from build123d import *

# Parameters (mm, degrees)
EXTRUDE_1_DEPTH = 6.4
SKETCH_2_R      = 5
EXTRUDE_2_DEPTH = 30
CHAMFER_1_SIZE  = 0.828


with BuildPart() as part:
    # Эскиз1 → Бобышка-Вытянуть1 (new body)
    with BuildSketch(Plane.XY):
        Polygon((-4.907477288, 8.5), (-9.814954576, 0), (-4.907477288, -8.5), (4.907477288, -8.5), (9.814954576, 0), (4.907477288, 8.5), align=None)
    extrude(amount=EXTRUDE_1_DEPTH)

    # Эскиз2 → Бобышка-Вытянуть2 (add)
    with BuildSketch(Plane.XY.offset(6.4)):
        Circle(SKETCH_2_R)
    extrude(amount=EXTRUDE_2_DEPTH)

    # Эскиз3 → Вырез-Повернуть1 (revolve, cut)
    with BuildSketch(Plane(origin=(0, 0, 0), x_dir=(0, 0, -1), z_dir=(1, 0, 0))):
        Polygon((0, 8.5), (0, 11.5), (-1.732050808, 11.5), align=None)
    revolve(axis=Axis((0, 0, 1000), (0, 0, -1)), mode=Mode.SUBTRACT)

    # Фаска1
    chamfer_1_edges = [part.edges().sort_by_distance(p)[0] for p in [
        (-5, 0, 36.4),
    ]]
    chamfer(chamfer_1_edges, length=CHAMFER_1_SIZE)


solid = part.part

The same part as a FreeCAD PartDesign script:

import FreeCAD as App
import Part
import Sketcher
from FreeCAD import Vector
Q = App.Units.Quantity


def edges_at(feature, points):
    """Names of the edges that pass closest to the given points."""
    edges = feature.Shape.Edges
    near = lambda p: min(range(len(edges)), key=lambda i: edges[i].distToShape(Part.Vertex(*p))[0])
    return sorted({f"Edge{near(p) + 1}" for p in points})


def add_polygon(sketch, points):
    """Adds a closed chain of lines whose ends are joined by coincident constraints."""
    first, n = sketch.GeometryCount, len(points)
    for a, b in zip(points, points[1:] + points[:1]):
        sketch.addGeometry(Part.LineSegment(App.Vector(*a, 0), App.Vector(*b, 0)), False)
    for i in range(n):
        sketch.addConstraint(Sketcher.Constraint("Coincident", first + i, 2, first + (i + 1) % n, 1))

doc = App.newDocument("Part")
body = doc.addObject("PartDesign::Body", "Body")

# Sketch on XY plane
sketch1 = doc.addObject("Sketcher::SketchObject", "Sketch")
body.addObject(sketch1)
sketch1.AttachmentSupport = (doc.XY_Plane, [""])
sketch1.MapMode = "FlatFace"
add_polygon(sketch1, [(-5, 8), (-10, 0), (-5, -8), (5, -8), (10, 0), (5, 8)])  # lines 0-5
sketch1.addConstraint(Sketcher.Constraint("Horizontal", 2))
sketch1.addConstraint(Sketcher.Constraint("Horizontal", 5))
sketch1.addConstraint(Sketcher.Constraint("Symmetric", 0, 2, 3, 2, -1, 1))
sketch1.addConstraint(Sketcher.Constraint("Symmetric", 1, 2, 4, 2, -1, 1))
sketch1.addConstraint(Sketcher.Constraint("PointOnObject", 0, 2, -1))
sketch1.addConstraint(Sketcher.Constraint("Parallel", 0, 3))
sketch1.addConstraint(Sketcher.Constraint("Vertical", 2, 2, 4, 2))
sketch1.addConstraint(Sketcher.Constraint("Angle", 0, Q("-120 deg")))
sketch1.addConstraint(Sketcher.Constraint("DistanceY", 2, 2, 4, 2, Q("17 mm")))
sketch1.addConstraint(Sketcher.Constraint("DistanceX", 2, 1, 2, 2, Q("9.814955 mm")))
pad1 = doc.addObject("PartDesign::Pad", "Pad")
body.addObject(pad1)
pad1.Profile = sketch1
pad1.Length = 6.4

# Sketch on XY plane
sketch2 = doc.addObject("Sketcher::SketchObject", "Sketch001")
body.addObject(sketch2)
sketch2.AttachmentSupport = (doc.XY_Plane, [""])
sketch2.MapMode = "FlatFace"
sketch2.AttachmentOffset = App.Placement(Vector(0, 0, 6.4), App.Rotation())
sketch2.addGeometry(Part.Circle(Vector(0, 0, 0), Vector(0, 0, 1), 5), False)
sketch2.addConstraint(Sketcher.Constraint("Coincident", 0, 3, -1, 1))
sketch2.addConstraint(Sketcher.Constraint("Diameter", 0, Q("10 mm")))
pad2 = doc.addObject("PartDesign::Pad", "Pad001")
body.addObject(pad2)
pad2.Profile = sketch2
pad2.Length = 30

# Sketch on YZ plane
sketch3 = doc.addObject("Sketcher::SketchObject", "Sketch002")
body.addObject(sketch3)
sketch3.AttachmentSupport = (doc.YZ_Plane, [""])
sketch3.MapMode = "FlatFace"
add_polygon(sketch3, [(8.5, 0), (11.5, 0), (11.5, 1.7)])  # lines 0-2
sketch3.addConstraint(Sketcher.Constraint("Horizontal", 0))
sketch3.addConstraint(Sketcher.Constraint("Vertical", 1))
sketch3.addConstraint(Sketcher.Constraint("PointOnObject", 0, 2, -1))
sketch3.addConstraint(Sketcher.Constraint("DistanceX", 0, 1, 0, 2, Q("3 mm")))
sketch3.addConstraint(Sketcher.Constraint("Angle", 2, Q("-150 deg")))
sketch3.addConstraint(Sketcher.Constraint("DistanceX", -1, 1, 0, 2, Q("11.5 mm")))
groove = doc.addObject("PartDesign::Groove", "Groove")
body.addObject(groove)
groove.Profile = sketch3
groove.ReferenceAxis = (sketch3, ["V_Axis"])
groove.Angle = 360
doc.recompute()

chamfer = doc.addObject("PartDesign::Chamfer", "Chamfer")
body.addObject(chamfer)
chamfer.Base = (groove, edges_at(groove, [(-5, 0, 36.4)]))
chamfer.Size = 0.828

doc.recompute()
